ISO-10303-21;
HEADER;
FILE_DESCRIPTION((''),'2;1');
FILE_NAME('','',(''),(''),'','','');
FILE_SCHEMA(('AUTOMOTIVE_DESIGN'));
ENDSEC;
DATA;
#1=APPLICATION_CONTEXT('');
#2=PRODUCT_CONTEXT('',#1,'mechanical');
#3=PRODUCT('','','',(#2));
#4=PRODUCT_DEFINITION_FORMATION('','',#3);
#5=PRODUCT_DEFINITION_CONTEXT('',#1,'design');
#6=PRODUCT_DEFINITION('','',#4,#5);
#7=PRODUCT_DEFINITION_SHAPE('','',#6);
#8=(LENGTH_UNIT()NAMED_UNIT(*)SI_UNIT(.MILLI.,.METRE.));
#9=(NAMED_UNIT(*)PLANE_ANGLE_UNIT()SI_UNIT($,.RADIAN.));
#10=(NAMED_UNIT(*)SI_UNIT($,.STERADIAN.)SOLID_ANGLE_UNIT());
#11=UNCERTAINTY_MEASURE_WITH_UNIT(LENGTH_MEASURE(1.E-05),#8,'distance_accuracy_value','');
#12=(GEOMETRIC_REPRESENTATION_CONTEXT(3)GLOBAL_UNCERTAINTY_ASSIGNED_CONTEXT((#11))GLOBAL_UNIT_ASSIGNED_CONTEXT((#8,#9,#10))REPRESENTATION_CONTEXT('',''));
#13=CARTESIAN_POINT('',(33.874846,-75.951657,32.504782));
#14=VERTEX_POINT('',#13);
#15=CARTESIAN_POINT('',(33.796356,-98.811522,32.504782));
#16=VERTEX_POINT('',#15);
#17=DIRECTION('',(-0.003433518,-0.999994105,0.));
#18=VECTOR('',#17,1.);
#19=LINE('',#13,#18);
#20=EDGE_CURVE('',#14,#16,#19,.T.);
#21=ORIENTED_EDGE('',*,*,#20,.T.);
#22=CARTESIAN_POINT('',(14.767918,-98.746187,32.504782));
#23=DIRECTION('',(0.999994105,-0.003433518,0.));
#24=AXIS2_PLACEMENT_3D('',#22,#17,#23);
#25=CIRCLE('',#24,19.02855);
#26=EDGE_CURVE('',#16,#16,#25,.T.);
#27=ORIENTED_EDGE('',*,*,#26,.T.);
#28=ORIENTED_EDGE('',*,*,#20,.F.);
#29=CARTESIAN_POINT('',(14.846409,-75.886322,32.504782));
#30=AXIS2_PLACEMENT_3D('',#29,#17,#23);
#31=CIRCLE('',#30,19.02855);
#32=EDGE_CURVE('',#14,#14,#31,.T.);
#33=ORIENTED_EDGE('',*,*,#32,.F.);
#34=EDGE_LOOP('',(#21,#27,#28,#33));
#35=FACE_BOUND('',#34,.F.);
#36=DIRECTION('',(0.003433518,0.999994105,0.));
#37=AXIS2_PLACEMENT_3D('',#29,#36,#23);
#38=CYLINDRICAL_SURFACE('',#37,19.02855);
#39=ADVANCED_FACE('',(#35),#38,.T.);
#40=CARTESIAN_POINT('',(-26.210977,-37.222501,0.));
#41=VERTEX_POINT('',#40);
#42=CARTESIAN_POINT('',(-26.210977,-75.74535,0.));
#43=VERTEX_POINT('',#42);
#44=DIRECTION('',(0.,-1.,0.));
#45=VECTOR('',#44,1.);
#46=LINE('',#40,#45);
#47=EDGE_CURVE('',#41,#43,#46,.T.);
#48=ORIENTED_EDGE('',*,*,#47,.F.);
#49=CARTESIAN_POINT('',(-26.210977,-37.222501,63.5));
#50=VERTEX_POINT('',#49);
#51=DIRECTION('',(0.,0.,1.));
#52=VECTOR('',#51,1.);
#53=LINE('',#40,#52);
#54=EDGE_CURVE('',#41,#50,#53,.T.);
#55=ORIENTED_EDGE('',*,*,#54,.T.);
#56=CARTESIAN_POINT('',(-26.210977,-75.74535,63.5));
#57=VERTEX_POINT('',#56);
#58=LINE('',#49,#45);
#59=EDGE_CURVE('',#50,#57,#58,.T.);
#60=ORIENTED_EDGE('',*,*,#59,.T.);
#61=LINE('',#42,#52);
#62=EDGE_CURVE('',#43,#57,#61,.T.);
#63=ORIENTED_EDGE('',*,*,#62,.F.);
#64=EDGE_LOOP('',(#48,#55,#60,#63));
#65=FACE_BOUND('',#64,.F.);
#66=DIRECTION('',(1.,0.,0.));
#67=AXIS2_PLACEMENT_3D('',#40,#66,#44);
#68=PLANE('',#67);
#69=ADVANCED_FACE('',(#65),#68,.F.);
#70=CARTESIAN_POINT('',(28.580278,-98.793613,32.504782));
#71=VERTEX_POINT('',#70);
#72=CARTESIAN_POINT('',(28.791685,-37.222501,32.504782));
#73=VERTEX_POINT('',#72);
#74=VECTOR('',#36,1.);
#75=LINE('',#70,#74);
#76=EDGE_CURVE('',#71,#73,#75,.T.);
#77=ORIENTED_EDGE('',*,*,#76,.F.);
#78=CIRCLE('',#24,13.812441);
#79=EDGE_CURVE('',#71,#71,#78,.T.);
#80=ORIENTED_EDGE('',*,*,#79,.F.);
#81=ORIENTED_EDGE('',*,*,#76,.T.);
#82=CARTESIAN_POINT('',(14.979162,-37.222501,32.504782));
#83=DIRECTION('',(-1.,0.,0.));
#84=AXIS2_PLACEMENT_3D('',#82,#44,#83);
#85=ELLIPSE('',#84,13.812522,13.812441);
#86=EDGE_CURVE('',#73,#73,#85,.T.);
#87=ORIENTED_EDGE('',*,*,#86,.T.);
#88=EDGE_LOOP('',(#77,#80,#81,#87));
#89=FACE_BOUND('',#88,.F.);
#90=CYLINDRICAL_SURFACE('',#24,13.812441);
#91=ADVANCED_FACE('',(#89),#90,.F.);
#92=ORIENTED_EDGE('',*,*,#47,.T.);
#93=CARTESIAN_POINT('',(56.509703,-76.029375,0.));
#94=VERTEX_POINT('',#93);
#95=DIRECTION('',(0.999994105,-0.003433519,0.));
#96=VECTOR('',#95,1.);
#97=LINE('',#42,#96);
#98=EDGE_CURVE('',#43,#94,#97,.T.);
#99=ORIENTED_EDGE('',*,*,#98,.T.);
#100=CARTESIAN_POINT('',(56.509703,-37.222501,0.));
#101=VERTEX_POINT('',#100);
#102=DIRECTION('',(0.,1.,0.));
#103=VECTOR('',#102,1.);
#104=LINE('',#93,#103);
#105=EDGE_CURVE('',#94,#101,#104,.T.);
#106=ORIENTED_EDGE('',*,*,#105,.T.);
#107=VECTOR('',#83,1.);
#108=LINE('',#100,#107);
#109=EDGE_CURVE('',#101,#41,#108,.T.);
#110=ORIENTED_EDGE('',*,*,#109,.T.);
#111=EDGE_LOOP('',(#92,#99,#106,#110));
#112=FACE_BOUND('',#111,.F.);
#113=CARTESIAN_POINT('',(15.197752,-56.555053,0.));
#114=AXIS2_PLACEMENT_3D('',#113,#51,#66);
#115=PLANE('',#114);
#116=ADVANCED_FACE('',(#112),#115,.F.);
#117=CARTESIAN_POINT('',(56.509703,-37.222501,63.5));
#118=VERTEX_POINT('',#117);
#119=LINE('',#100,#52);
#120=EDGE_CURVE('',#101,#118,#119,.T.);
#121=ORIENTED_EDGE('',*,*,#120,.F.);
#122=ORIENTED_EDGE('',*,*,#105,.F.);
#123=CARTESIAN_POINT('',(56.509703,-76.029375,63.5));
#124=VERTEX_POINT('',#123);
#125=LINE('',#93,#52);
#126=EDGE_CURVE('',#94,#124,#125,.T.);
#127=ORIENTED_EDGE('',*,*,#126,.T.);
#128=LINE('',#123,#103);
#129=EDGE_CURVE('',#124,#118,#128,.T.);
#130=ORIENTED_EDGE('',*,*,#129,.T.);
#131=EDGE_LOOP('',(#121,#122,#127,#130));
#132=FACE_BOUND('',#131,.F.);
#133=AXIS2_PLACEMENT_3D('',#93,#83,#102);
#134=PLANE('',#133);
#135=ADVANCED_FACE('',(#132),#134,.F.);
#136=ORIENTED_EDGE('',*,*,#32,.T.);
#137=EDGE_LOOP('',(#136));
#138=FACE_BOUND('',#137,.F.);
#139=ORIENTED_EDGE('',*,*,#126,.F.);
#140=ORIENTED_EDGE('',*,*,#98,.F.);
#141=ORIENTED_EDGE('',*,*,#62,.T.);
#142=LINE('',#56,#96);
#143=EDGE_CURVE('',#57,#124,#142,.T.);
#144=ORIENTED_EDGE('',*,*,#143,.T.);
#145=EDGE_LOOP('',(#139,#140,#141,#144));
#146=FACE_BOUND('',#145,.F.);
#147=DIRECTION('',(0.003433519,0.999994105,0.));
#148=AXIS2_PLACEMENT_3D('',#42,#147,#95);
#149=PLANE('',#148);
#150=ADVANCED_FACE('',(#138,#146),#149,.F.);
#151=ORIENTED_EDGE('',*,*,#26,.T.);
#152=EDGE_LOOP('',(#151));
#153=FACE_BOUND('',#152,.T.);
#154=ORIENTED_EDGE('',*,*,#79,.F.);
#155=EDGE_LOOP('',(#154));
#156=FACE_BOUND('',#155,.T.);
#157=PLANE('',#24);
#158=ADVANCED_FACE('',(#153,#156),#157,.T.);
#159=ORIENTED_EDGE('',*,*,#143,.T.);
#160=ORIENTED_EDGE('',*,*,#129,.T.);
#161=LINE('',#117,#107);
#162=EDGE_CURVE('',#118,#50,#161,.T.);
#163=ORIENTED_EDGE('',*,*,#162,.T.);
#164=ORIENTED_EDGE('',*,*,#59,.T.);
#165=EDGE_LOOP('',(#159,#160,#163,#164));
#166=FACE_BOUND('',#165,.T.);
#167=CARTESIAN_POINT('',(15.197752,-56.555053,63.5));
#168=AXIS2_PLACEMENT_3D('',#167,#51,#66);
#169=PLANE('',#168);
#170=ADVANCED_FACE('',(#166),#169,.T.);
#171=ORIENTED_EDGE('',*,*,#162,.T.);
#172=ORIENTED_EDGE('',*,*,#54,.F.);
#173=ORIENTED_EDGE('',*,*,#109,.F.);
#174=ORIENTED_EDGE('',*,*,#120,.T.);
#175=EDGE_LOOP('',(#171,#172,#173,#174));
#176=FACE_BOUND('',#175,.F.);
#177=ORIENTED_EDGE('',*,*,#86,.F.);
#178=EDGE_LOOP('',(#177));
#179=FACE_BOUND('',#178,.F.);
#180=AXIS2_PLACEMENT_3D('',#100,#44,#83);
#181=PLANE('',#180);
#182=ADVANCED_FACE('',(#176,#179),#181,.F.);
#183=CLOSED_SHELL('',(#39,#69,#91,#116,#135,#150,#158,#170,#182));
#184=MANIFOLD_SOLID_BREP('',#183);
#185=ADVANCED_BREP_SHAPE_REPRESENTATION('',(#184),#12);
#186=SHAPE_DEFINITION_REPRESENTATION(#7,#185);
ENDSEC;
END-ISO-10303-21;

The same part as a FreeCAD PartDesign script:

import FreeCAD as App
import Part
import Sketcher

V = App.Vector
Q = App.Units.Quantity


def add_polygon(sketch, points):
    """Adds a closed chain of lines whose ends are joined by coincident constraints."""
    first, n = sketch.GeometryCount, len(points)
    for a, b in zip(points, points[1:] + points[:1]):
        sketch.addGeometry(Part.LineSegment(App.Vector(*a, 0), App.Vector(*b, 0)), False)
    for i in range(n):
        sketch.addConstraint(Sketcher.Constraint("Coincident", first + i, 2, first + (i + 1) % n, 1))

doc = App.newDocument("Part")
body = doc.addObject("PartDesign::Body", "Body")

sketch1 = body.newObject("Sketcher::SketchObject", "Sketch")
sketch1.AttachmentSupport = (doc.getObject("XY_Plane"), [""])
sketch1.MapMode = "FlatFace"
add_polygon(sketch1, [(-26, -76), (57, -76), (57, -37), (-26, -37)])
sketch1.addConstraint(Sketcher.Constraint("Vertical", 1))
sketch1.addConstraint(Sketcher.Constraint("Horizontal", 2))
sketch1.addConstraint(Sketcher.Constraint("Vertical", 3))
sketch1.addConstraint(Sketcher.Constraint("DistanceX", 2, 2, 2, 1, Q("82.72068 mm")))
sketch1.addConstraint(Sketcher.Constraint("DistanceY", 3, 2, 3, 1, Q("38.522849 mm")))
sketch1.addConstraint(Sketcher.Constraint("DistanceY", 1, 2, -1, 1, Q("37.222501 mm")))
sketch1.addConstraint(Sketcher.Constraint("DistanceY", 1, 1, 1, 2, Q("38.806874 mm")))
sketch1.addConstraint(Sketcher.Constraint("DistanceX", -1, 1, 0, 2, Q("56.509703 mm")))
pad1 = body.newObject("PartDesign::Pad", "Pad")
pad1.Profile = sketch1
pad1.Length = Q("2.5 in")

sketch2 = body.newObject("Sketcher::SketchObject", "Sketch001")
sketch2.Placement = App.Placement(V(-0.260381, -75.834452, 0), App.Rotation(V(0.999994105, -0.003433518, 0), V(0, 0, 0.999999999), V(-0.003433518, -0.999994105, 0), "ZXY"))
sketch2.addGeometry(Part.Circle(V(15, 33, 0), V(0, 0, 1), 19), False)
sketch2.addConstraint(Sketcher.Constraint("Diameter", 0, Q("38.0571 mm")))
sketch2.addConstraint(Sketcher.Constraint("DistanceX", -1, 1, 0, 3, Q("15.106878 mm")))
sketch2.addConstraint(Sketcher.Constraint("DistanceY", -1, 1, 0, 3, Q("32.504782 mm")))
pad2 = body.newObject("PartDesign::Pad", "Pad001")
pad2.Profile = sketch2
pad2.Length = Q("0.9 in")

sketch3 = body.newObject("Sketcher::SketchObject", "Sketch002")
sketch3.Placement = App.Placement(V(-0.338871, -98.694318, 0), App.Rotation(V(0.999994105, -0.003433518, 0), V(0, 0, 0.999999999), V(-0.003433518, -0.999994105, 0), "ZXY"))
sketch3.addGeometry(Part.Circle(V(15, 33, 0), V(0, 0, 1), 14), False)
sketch3.addConstraint(Sketcher.Constraint("Diameter", 0, Q("27.624882 mm")))
sketch3.addConstraint(Sketcher.Constraint("DistanceX", -1, 1, 0, 3, Q("15.106878 mm")))
sketch3.addConstraint(Sketcher.Constraint("DistanceY", -1, 1, 0, 3, Q("32.504782 mm")))
pocket1 = body.newObject("PartDesign::Pocket", "Pocket")
pocket1.Profile = sketch3
pocket1.Type = "ThroughAll"
pocket1.Midplane = True

doc.recompute()
